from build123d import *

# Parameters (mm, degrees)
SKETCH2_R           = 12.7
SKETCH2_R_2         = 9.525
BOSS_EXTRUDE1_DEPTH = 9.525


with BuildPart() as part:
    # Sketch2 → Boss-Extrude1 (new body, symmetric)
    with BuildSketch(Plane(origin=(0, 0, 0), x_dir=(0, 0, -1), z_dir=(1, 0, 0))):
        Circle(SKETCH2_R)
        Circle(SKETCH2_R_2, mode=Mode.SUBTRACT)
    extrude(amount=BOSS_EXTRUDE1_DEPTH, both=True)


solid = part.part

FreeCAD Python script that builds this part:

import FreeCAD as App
import Part
import Sketcher
from FreeCAD import Vector
Q = App.Units.Quantity

doc = App.newDocument("Part")
body = doc.addObject("PartDesign::Body", "Body")

sketch1 = body.newObject("Sketcher::SketchObject", "Sketch")
sketch1.AttachmentSupport = (doc.getObject("YZ_Plane"), [""])
sketch1.MapMode = "FlatFace"
sketch1.addGeometry(Part.Circle(Vector(0, 0, 0), Vector(0, 0, 1), 13), False)
sketch1.addGeometry(Part.Circle(Vector(0, 0, 0), Vector(0, 0, 1), 10), False)
sketch1.addConstraint(Sketcher.Constraint("Coincident", 0, 3, -1, 1))
sketch1.addConstraint(Sketcher.Constraint("Coincident", 1, 3, -1, 1))
sketch1.addConstraint(Sketcher.Constraint("Diameter", 0, Q("1 in")))
sketch1.addConstraint(Sketcher.Constraint("Diameter", 1, Q("0.75 in")))
pad1 = body.newObject("PartDesign::Pad", "Pad")
pad1.Profile = sketch1
pad1.Length = Q("0.75 in")
pad1.Midplane = True

doc.recompute()
